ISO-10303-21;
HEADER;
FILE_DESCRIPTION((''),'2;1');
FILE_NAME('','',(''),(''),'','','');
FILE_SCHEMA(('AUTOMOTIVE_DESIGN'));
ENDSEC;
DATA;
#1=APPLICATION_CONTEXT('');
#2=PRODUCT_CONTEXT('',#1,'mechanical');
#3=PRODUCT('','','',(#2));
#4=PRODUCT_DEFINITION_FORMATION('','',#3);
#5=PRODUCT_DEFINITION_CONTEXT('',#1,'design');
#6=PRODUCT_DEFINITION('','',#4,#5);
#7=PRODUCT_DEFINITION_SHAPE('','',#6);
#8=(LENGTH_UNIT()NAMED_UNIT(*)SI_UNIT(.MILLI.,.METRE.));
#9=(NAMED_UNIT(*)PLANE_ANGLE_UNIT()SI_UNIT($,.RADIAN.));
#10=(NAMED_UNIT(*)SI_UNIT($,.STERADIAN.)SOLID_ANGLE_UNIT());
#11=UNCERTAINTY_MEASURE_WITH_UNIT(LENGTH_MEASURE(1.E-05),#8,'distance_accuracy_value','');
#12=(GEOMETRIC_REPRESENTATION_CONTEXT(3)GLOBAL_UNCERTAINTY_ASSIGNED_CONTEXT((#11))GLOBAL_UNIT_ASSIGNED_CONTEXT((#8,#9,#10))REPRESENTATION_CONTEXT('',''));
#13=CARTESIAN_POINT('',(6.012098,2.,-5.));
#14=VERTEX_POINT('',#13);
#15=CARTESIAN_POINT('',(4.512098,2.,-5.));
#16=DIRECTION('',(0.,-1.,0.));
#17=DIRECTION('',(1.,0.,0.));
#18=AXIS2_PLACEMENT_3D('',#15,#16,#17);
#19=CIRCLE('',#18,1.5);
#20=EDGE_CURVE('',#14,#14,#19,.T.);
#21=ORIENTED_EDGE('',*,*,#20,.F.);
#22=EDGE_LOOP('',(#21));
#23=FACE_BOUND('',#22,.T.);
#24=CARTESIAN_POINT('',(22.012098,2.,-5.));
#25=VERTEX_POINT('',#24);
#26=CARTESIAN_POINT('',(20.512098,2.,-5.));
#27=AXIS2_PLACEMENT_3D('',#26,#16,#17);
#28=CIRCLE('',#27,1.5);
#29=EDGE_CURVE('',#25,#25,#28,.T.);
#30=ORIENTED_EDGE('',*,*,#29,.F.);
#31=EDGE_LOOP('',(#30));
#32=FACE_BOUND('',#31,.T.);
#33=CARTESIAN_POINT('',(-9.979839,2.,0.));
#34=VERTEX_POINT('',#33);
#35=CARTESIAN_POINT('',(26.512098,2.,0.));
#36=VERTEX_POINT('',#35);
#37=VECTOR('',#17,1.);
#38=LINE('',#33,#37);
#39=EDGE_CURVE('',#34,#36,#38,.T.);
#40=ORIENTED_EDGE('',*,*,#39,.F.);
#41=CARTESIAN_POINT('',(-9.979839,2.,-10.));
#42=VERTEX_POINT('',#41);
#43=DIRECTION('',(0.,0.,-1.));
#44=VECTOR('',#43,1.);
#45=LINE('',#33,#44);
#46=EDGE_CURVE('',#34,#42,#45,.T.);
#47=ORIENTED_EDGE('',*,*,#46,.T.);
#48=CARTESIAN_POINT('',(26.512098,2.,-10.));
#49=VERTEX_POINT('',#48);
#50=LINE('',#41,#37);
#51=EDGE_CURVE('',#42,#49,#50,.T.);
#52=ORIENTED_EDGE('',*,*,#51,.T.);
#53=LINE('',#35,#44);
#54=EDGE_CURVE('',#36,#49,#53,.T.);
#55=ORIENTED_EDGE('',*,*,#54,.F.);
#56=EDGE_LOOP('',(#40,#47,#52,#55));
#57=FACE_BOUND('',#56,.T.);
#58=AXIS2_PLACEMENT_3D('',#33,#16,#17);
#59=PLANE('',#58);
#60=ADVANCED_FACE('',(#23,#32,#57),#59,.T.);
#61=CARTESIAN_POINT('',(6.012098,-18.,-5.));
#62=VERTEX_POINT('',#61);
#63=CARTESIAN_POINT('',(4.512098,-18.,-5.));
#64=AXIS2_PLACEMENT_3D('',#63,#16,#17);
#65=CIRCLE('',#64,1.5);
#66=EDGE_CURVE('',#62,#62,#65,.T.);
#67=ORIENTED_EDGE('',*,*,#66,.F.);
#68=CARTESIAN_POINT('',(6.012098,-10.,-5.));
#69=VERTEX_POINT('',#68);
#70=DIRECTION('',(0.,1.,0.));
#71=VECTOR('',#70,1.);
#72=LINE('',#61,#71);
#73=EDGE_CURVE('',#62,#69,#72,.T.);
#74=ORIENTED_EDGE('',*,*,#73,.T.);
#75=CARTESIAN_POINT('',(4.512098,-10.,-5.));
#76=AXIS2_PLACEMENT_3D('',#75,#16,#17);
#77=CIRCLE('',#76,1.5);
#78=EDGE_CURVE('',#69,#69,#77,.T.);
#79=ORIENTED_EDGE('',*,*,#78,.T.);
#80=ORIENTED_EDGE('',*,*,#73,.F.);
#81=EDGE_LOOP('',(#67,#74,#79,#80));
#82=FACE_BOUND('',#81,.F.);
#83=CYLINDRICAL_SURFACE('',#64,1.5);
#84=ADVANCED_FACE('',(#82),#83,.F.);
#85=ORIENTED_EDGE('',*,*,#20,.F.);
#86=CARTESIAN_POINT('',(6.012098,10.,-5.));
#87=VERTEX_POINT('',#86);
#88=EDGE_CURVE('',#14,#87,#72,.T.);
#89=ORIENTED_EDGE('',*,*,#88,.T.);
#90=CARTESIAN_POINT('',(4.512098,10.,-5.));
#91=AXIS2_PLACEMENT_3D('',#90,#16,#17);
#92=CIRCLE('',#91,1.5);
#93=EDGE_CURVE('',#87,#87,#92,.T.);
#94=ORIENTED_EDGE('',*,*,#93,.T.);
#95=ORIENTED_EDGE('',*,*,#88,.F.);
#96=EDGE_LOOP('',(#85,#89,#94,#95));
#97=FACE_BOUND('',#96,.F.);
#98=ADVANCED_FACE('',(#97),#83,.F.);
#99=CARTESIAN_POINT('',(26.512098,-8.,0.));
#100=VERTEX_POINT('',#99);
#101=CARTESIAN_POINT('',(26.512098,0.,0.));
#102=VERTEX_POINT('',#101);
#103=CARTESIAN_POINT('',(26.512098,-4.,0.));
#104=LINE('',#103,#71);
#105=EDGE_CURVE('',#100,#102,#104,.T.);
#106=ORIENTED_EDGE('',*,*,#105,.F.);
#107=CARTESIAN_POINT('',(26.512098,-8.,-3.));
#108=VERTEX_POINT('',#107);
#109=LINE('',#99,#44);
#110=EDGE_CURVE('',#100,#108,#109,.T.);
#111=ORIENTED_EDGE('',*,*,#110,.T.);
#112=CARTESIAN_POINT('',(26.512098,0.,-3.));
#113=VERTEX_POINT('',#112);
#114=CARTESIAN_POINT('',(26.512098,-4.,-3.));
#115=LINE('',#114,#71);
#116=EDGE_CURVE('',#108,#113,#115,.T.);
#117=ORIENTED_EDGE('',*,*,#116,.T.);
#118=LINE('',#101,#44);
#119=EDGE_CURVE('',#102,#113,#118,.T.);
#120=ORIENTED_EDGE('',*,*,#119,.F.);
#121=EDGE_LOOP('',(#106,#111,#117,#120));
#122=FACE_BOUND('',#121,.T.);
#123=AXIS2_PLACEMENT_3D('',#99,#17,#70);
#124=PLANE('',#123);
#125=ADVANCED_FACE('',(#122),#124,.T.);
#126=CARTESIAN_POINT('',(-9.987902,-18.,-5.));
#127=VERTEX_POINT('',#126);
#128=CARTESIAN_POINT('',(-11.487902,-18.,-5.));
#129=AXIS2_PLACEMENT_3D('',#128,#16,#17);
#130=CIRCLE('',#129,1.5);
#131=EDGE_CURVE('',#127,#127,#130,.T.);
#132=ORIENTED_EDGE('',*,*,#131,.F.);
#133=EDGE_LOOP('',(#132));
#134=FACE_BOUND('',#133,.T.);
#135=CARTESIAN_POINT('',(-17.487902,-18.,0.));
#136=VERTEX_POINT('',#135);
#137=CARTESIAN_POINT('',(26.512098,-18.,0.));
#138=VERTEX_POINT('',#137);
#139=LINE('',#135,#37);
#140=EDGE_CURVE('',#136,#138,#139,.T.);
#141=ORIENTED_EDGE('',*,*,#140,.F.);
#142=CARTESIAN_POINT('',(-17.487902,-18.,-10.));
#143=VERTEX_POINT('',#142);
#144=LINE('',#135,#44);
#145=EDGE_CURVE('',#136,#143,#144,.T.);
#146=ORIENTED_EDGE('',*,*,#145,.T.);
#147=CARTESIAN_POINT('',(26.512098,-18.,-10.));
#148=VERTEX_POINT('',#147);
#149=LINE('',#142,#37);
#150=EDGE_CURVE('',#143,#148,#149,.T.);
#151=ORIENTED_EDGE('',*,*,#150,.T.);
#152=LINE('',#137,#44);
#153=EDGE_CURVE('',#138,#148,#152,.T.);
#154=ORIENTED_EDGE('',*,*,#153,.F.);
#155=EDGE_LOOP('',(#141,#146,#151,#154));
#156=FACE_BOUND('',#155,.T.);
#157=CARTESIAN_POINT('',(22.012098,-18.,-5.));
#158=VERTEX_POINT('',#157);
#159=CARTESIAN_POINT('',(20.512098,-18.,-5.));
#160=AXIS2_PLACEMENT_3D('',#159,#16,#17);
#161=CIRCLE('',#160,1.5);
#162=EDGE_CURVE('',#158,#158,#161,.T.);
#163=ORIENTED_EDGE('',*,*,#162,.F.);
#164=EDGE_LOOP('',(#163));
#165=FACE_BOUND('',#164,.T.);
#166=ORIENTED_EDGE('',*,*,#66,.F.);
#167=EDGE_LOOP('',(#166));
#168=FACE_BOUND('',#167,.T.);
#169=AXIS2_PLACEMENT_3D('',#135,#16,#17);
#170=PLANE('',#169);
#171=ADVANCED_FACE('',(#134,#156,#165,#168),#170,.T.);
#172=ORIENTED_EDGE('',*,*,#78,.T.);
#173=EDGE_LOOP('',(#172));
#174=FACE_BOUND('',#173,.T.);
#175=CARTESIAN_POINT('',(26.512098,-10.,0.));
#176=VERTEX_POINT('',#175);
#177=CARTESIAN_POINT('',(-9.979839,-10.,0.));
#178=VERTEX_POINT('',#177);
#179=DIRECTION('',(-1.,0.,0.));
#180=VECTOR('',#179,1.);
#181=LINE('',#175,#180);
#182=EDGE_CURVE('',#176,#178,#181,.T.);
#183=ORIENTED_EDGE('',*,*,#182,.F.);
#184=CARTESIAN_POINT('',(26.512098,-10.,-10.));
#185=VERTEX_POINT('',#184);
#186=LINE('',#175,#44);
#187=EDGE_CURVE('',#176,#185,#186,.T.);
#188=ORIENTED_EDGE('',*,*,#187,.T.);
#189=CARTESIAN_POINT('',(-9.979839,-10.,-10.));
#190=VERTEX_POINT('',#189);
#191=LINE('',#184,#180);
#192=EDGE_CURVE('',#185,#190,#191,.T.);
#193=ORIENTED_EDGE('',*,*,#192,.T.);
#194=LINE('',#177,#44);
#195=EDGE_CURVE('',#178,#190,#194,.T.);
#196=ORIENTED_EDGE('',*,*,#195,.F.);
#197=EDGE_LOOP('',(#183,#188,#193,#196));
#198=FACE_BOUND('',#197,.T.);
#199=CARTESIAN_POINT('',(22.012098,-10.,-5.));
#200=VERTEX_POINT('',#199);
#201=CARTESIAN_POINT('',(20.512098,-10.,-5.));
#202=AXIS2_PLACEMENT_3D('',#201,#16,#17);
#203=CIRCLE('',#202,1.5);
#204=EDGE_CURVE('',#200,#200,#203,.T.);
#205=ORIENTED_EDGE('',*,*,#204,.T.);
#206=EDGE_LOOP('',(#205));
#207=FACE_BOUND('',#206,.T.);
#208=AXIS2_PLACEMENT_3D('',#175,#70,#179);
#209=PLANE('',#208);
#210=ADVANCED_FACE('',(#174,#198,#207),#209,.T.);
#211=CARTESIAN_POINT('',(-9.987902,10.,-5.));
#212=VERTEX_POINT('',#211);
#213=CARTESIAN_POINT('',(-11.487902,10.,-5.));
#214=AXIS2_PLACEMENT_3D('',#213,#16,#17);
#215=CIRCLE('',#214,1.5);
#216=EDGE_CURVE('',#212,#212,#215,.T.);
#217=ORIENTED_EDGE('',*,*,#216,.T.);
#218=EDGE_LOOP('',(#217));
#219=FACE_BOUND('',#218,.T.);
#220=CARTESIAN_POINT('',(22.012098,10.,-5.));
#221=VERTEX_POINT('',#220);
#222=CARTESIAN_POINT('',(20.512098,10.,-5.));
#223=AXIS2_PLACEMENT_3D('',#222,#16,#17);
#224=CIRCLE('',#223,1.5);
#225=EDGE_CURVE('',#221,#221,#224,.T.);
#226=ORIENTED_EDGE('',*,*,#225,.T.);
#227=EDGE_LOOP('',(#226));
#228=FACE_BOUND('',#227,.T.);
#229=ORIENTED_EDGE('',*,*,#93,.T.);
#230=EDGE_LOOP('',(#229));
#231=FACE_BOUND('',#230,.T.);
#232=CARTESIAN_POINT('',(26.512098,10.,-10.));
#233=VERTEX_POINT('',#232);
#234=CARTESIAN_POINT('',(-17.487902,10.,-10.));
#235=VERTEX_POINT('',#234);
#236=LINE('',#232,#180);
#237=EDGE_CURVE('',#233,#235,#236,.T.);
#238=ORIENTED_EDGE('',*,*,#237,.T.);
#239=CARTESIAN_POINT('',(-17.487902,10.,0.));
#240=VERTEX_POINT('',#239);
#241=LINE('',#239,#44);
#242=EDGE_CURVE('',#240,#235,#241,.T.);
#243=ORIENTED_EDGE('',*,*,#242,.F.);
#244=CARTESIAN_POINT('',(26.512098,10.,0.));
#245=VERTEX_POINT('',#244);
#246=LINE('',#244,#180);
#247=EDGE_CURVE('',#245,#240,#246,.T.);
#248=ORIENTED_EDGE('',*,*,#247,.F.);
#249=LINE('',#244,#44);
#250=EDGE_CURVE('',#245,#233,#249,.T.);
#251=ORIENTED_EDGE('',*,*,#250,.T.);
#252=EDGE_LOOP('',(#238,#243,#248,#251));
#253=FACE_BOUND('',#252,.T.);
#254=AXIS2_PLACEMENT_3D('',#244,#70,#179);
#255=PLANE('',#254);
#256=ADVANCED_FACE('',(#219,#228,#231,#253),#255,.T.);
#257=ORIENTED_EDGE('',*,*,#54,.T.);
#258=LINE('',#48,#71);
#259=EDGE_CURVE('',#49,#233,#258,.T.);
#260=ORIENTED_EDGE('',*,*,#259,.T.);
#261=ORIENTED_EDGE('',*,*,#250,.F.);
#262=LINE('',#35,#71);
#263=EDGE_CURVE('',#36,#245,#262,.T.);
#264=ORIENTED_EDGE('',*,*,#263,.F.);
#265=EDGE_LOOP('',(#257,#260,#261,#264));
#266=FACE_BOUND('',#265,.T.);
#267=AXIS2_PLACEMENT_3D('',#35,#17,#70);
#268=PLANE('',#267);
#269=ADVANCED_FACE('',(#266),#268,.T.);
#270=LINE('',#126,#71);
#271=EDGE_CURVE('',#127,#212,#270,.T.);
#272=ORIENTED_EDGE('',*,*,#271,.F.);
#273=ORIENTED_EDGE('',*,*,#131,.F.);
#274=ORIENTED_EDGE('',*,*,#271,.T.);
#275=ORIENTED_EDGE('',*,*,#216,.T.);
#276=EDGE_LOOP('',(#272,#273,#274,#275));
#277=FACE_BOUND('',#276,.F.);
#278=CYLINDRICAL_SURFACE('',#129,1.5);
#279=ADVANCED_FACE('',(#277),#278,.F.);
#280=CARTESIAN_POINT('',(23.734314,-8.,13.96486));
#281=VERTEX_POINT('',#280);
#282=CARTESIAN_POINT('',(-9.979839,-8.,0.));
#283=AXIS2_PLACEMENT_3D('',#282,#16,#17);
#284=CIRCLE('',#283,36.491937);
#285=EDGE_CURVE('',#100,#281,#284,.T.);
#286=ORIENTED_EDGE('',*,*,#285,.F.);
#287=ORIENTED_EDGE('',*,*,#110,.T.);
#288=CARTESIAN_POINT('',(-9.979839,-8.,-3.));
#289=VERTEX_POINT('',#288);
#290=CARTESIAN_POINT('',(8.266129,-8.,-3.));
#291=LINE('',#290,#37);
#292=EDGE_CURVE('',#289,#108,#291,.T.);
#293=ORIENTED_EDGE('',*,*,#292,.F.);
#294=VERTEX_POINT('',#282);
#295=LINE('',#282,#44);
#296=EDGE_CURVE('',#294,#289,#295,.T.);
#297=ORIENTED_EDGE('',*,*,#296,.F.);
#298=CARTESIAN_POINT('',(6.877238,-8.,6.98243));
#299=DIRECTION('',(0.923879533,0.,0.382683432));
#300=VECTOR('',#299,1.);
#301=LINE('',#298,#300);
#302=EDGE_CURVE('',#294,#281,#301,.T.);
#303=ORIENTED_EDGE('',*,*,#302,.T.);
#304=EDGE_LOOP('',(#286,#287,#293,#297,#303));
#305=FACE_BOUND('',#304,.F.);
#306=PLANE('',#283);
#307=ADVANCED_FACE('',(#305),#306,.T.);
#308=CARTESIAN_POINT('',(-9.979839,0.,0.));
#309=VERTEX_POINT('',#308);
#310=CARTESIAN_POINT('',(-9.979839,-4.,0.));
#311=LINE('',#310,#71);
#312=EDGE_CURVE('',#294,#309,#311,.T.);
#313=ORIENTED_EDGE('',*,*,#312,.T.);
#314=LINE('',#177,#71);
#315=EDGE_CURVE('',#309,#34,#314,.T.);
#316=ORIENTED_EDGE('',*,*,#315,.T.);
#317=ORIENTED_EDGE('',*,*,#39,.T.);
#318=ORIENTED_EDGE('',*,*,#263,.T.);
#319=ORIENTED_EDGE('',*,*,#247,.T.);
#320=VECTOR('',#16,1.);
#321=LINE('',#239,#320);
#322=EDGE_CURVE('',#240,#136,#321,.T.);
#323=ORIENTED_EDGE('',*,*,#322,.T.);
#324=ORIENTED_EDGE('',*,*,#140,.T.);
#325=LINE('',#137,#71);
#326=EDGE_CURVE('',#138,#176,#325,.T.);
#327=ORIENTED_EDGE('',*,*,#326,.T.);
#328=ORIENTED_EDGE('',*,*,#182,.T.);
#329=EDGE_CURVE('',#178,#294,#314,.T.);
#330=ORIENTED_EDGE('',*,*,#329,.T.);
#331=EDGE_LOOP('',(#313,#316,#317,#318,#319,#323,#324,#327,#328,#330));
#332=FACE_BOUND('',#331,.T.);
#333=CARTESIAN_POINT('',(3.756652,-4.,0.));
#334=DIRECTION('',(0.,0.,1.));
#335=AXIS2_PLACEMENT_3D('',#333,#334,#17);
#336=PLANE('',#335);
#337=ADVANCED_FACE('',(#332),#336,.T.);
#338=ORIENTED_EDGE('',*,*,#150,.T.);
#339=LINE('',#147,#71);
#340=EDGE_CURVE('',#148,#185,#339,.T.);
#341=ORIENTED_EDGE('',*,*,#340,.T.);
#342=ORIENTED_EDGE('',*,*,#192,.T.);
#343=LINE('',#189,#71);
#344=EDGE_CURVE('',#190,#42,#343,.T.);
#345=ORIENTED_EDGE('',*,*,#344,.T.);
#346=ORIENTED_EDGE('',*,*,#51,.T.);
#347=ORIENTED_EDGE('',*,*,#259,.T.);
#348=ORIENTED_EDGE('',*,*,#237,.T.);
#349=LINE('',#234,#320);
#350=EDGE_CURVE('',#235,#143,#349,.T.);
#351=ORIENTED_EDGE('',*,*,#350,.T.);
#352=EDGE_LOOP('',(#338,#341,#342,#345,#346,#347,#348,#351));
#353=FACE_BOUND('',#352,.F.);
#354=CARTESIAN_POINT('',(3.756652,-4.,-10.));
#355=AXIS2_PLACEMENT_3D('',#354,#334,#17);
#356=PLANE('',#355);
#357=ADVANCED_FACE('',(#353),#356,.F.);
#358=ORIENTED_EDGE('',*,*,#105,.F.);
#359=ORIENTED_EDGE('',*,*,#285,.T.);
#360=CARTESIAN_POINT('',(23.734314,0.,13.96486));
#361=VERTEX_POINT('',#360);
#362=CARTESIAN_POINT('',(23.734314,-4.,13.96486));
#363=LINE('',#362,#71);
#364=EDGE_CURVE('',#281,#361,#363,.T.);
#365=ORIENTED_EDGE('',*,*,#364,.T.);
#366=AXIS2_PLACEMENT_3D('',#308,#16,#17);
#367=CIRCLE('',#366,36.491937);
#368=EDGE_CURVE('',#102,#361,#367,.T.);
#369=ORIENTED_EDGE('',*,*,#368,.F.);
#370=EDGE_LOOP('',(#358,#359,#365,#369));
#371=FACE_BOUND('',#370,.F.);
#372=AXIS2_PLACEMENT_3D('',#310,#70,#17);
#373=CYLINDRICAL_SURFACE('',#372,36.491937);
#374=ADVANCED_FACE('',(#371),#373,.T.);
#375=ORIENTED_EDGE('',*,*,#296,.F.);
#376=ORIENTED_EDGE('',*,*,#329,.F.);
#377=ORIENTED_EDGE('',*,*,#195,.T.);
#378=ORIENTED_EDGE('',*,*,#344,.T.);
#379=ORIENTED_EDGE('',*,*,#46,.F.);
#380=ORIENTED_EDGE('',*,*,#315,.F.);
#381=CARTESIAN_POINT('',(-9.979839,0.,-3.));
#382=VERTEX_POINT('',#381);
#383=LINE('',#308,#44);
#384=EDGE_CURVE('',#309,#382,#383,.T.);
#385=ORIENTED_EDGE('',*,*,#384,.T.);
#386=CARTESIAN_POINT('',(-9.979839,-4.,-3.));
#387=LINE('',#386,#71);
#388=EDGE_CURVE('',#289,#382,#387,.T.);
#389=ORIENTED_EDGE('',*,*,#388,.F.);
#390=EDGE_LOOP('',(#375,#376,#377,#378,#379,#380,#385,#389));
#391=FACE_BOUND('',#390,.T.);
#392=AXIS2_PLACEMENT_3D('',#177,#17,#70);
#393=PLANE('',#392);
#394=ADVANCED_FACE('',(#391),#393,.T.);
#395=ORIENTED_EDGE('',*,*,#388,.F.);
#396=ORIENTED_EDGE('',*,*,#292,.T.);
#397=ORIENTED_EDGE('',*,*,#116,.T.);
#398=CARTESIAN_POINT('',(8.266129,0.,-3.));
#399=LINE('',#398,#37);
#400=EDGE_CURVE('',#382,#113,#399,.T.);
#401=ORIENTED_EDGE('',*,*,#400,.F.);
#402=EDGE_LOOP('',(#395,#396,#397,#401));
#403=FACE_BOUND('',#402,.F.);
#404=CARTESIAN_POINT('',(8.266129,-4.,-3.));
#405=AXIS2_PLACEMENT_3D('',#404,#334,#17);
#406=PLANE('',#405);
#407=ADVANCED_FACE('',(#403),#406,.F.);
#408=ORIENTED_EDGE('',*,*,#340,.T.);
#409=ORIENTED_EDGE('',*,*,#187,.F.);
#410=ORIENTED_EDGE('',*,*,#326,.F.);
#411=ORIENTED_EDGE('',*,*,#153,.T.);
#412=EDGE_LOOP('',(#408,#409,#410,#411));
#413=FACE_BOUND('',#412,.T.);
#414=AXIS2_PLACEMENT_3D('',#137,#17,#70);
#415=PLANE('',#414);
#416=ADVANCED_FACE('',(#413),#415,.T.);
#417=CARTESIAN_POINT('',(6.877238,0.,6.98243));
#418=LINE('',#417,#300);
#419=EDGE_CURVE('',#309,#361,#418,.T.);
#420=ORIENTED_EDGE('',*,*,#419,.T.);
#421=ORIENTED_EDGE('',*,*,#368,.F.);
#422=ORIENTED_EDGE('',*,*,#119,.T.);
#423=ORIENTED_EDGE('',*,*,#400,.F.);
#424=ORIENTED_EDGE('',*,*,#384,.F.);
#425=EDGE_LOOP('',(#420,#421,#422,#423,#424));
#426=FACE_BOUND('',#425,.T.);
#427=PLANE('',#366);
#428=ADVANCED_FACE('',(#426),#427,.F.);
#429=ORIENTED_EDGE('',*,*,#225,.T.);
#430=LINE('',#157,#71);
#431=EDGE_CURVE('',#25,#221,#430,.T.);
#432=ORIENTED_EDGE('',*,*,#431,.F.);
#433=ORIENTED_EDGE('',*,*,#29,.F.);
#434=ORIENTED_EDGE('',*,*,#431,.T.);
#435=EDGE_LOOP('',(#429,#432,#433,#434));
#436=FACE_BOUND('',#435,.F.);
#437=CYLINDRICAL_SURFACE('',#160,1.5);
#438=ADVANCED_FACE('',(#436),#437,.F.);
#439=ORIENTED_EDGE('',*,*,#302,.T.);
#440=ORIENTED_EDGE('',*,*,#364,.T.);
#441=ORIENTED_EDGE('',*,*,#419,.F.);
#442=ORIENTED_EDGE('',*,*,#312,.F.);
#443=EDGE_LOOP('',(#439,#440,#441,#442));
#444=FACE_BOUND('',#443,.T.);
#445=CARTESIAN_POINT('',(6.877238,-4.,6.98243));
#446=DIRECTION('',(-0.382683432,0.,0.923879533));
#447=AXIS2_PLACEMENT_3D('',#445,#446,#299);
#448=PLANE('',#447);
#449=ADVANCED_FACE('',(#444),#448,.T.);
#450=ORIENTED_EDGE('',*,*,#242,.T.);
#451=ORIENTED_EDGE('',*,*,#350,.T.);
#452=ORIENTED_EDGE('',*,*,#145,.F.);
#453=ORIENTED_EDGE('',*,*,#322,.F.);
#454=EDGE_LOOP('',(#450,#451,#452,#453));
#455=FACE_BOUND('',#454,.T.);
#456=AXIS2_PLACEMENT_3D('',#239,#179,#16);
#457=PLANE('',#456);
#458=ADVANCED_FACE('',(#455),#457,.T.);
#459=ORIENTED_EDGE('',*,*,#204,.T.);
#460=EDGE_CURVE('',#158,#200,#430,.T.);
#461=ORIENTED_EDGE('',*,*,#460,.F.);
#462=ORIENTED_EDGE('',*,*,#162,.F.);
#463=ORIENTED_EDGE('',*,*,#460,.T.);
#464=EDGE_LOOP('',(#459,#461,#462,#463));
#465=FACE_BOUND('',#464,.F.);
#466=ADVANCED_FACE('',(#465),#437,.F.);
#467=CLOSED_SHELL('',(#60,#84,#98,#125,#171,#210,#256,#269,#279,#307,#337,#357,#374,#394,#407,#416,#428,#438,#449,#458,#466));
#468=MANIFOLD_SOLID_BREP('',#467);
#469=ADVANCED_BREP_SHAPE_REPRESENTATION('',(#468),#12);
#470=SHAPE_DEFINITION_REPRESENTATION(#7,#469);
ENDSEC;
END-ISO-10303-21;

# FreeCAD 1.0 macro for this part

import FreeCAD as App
import Part
import Sketcher

V = App.Vector


def add_polygon(sketch, points):
    """Adds a closed chain of lines whose ends are joined by coincident constraints."""
    first, n = sketch.GeometryCount, len(points)
    for a, b in zip(points, points[1:] + points[:1]):
        sketch.addGeometry(Part.LineSegment(App.Vector(*a, 0), App.Vector(*b, 0)), False)
    for i in range(n):
        sketch.addConstraint(Sketcher.Constraint("Coincident", first + i, 2, first + (i + 1) % n, 1))

doc = App.newDocument("Part")
body = doc.addObject("PartDesign::Body", "Body")

# Sketch on XY plane
sketch1 = doc.addObject("Sketcher::SketchObject", "Sketch")
body.addObject(sketch1)
sketch1.AttachmentSupport = (doc.XY_Plane, [""])
sketch1.MapMode = "FlatFace"
add_polygon(sketch1, [(27, 10), (-17, 10), (-17, -18), (27, -18), (27, -10), (-10, -10), (-10, 2), (27, 2)])  # lines 0-7
sketch1.addConstraint([
    Sketcher.Constraint("Horizontal", 0),
    Sketcher.Constraint("Vertical", 1),
    Sketcher.Constraint("Horizontal", 2),
    Sketcher.Constraint("Vertical", 3),
    Sketcher.Constraint("Horizontal", 4),
    Sketcher.Constraint("Vertical", 5),
    Sketcher.Constraint("Horizontal", 6),
    Sketcher.Constraint("Vertical", 7),
    Sketcher.Constraint("Symmetric", 3, 2, 7, 2, -1),
    Sketcher.Constraint("Equal", 3, 7),
    Sketcher.Constraint("DistanceX", 0, 2, 0, 1, 44.0),
    Sketcher.Constraint("DistanceY", 1, 2, 1, 1, 28.0),
    Sketcher.Constraint("DistanceY", 3, 1, 3, 2, 8.0),
    Sketcher.Constraint("DistanceX", 4, 2, 4, 1, 36.491937),
    Sketcher.Constraint("DistanceX", 4, 2, -1, 1, 9.979839),
])
pad1 = doc.addObject("PartDesign::Pad", "Pad")
body.addObject(pad1)
pad1.Profile = sketch1
pad1.Length = 10
pad1.Reversed = True

# Sketch on XY plane
sketch2 = doc.addObject("Sketcher::SketchObject", "Sketch001")
body.addObject(sketch2)
sketch2.AttachmentSupport = (doc.XY_Plane, [""])
sketch2.MapMode = "FlatFace"
add_polygon(sketch2, [(-10, 0), (-10, -8), (27, -8), (27, 0)])  # lines 0-3
sketch2.addConstraint([
    Sketcher.Constraint("Vertical", 0),
    Sketcher.Constraint("Horizontal", 1),
    Sketcher.Constraint("Vertical", 2),
    Sketcher.Constraint("Horizontal", 3),
    Sketcher.Constraint("PointOnObject", 2, 2, -1),
    Sketcher.Constraint("DistanceY", 0, 2, 0, 1, 8.0),
    Sketcher.Constraint("DistanceX", 1, 1, 1, 2, 36.491937),
    Sketcher.Constraint("DistanceX", 0, 2, -1, 1, 9.979839),
])
pad2 = doc.addObject("PartDesign::Pad", "Pad001")
body.addObject(pad2)
pad2.Profile = sketch2
pad2.Length = 3
pad2.Reversed = True

# Sketch on XY plane
sketch3 = doc.addObject("Sketcher::SketchObject", "Sketch002")
body.addObject(sketch3)
sketch3.AttachmentSupport = (doc.XY_Plane, [""])
sketch3.MapMode = "FlatFace"
add_polygon(sketch3, [(-10, 0), (-10, -8), (27, -8), (27, 0)])  # lines 0-3
sketch3.addGeometry(Part.LineSegment(V(-10, 0, 0), V(-10, -8, 0)), True)  # axis
sketch3.addConstraint([
    Sketcher.Constraint("Vertical", 0),
    Sketcher.Constraint("Horizontal", 1),
    Sketcher.Constraint("Vertical", 2),
    Sketcher.Constraint("Horizontal", 3),
    Sketcher.Constraint("Vertical", 4),
    Sketcher.Constraint("Coincident", 4, 1, 3, 2),
    Sketcher.Constraint("PointOnObject", 2, 2, -1),
    Sketcher.Constraint("Horizontal", 1, 2, 4, 2),
    Sketcher.Constraint("DistanceY", 0, 2, 0, 1, 8.0),
    Sketcher.Constraint("DistanceX", 1, 1, 1, 2, 36.491937),
    Sketcher.Constraint("DistanceX", 0, 2, -1, 1, 9.979839),
])
revolution = doc.addObject("PartDesign::Revolution", "Revolution")
body.addObject(revolution)
revolution.Profile = sketch3
revolution.ReferenceAxis = (sketch3, ["Axis0"])
revolution.Angle = 22.5

# Sketch on XZ plane
sketch4 = doc.addObject("Sketcher::SketchObject", "Sketch003")
body.addObject(sketch4)
sketch4.AttachmentSupport = (doc.XZ_Plane, [""])
sketch4.MapMode = "FlatFace"
sketch4.AttachmentOffset = App.Placement(V(0, 0, 18), App.Rotation())
sketch4.addGeometry([
    Part.Circle(V(-11.5, -5, 0), V(0, 0, 1), 1.5),
    Part.Circle(V(4.5, -5, 0), V(0, 0, 1), 1.5),
    Part.Circle(V(20.5, -5, 0), V(0, 0, 1), 1.5),
], False)
sketch4.addConstraint([
    Sketcher.Constraint("Equal", 0, 1),
    Sketcher.Constraint("Equal", 1, 2),
    Sketcher.Constraint("Horizontal", 0, 3, 1, 3),
    Sketcher.Constraint("Horizontal", 1, 3, 2, 3),
    Sketcher.Constraint("Diameter", 0, 3.0),
    Sketcher.Constraint("DistanceY", 0, 3, -1, 1, 5.0),
    Sketcher.Constraint("DistanceX", 0, 3, 1, 3, 16.0),
    Sketcher.Constraint("DistanceX", 1, 3, 2, 3, 16.0),
    Sketcher.Constraint("DistanceX", 0, 3, -1, 1, 11.487902),
])
pocket1 = doc.addObject("PartDesign::Pocket", "Pocket")
body.addObject(pocket1)
pocket1.Profile = sketch4
pocket1.Type = "ThroughAll"

doc.recompute()
